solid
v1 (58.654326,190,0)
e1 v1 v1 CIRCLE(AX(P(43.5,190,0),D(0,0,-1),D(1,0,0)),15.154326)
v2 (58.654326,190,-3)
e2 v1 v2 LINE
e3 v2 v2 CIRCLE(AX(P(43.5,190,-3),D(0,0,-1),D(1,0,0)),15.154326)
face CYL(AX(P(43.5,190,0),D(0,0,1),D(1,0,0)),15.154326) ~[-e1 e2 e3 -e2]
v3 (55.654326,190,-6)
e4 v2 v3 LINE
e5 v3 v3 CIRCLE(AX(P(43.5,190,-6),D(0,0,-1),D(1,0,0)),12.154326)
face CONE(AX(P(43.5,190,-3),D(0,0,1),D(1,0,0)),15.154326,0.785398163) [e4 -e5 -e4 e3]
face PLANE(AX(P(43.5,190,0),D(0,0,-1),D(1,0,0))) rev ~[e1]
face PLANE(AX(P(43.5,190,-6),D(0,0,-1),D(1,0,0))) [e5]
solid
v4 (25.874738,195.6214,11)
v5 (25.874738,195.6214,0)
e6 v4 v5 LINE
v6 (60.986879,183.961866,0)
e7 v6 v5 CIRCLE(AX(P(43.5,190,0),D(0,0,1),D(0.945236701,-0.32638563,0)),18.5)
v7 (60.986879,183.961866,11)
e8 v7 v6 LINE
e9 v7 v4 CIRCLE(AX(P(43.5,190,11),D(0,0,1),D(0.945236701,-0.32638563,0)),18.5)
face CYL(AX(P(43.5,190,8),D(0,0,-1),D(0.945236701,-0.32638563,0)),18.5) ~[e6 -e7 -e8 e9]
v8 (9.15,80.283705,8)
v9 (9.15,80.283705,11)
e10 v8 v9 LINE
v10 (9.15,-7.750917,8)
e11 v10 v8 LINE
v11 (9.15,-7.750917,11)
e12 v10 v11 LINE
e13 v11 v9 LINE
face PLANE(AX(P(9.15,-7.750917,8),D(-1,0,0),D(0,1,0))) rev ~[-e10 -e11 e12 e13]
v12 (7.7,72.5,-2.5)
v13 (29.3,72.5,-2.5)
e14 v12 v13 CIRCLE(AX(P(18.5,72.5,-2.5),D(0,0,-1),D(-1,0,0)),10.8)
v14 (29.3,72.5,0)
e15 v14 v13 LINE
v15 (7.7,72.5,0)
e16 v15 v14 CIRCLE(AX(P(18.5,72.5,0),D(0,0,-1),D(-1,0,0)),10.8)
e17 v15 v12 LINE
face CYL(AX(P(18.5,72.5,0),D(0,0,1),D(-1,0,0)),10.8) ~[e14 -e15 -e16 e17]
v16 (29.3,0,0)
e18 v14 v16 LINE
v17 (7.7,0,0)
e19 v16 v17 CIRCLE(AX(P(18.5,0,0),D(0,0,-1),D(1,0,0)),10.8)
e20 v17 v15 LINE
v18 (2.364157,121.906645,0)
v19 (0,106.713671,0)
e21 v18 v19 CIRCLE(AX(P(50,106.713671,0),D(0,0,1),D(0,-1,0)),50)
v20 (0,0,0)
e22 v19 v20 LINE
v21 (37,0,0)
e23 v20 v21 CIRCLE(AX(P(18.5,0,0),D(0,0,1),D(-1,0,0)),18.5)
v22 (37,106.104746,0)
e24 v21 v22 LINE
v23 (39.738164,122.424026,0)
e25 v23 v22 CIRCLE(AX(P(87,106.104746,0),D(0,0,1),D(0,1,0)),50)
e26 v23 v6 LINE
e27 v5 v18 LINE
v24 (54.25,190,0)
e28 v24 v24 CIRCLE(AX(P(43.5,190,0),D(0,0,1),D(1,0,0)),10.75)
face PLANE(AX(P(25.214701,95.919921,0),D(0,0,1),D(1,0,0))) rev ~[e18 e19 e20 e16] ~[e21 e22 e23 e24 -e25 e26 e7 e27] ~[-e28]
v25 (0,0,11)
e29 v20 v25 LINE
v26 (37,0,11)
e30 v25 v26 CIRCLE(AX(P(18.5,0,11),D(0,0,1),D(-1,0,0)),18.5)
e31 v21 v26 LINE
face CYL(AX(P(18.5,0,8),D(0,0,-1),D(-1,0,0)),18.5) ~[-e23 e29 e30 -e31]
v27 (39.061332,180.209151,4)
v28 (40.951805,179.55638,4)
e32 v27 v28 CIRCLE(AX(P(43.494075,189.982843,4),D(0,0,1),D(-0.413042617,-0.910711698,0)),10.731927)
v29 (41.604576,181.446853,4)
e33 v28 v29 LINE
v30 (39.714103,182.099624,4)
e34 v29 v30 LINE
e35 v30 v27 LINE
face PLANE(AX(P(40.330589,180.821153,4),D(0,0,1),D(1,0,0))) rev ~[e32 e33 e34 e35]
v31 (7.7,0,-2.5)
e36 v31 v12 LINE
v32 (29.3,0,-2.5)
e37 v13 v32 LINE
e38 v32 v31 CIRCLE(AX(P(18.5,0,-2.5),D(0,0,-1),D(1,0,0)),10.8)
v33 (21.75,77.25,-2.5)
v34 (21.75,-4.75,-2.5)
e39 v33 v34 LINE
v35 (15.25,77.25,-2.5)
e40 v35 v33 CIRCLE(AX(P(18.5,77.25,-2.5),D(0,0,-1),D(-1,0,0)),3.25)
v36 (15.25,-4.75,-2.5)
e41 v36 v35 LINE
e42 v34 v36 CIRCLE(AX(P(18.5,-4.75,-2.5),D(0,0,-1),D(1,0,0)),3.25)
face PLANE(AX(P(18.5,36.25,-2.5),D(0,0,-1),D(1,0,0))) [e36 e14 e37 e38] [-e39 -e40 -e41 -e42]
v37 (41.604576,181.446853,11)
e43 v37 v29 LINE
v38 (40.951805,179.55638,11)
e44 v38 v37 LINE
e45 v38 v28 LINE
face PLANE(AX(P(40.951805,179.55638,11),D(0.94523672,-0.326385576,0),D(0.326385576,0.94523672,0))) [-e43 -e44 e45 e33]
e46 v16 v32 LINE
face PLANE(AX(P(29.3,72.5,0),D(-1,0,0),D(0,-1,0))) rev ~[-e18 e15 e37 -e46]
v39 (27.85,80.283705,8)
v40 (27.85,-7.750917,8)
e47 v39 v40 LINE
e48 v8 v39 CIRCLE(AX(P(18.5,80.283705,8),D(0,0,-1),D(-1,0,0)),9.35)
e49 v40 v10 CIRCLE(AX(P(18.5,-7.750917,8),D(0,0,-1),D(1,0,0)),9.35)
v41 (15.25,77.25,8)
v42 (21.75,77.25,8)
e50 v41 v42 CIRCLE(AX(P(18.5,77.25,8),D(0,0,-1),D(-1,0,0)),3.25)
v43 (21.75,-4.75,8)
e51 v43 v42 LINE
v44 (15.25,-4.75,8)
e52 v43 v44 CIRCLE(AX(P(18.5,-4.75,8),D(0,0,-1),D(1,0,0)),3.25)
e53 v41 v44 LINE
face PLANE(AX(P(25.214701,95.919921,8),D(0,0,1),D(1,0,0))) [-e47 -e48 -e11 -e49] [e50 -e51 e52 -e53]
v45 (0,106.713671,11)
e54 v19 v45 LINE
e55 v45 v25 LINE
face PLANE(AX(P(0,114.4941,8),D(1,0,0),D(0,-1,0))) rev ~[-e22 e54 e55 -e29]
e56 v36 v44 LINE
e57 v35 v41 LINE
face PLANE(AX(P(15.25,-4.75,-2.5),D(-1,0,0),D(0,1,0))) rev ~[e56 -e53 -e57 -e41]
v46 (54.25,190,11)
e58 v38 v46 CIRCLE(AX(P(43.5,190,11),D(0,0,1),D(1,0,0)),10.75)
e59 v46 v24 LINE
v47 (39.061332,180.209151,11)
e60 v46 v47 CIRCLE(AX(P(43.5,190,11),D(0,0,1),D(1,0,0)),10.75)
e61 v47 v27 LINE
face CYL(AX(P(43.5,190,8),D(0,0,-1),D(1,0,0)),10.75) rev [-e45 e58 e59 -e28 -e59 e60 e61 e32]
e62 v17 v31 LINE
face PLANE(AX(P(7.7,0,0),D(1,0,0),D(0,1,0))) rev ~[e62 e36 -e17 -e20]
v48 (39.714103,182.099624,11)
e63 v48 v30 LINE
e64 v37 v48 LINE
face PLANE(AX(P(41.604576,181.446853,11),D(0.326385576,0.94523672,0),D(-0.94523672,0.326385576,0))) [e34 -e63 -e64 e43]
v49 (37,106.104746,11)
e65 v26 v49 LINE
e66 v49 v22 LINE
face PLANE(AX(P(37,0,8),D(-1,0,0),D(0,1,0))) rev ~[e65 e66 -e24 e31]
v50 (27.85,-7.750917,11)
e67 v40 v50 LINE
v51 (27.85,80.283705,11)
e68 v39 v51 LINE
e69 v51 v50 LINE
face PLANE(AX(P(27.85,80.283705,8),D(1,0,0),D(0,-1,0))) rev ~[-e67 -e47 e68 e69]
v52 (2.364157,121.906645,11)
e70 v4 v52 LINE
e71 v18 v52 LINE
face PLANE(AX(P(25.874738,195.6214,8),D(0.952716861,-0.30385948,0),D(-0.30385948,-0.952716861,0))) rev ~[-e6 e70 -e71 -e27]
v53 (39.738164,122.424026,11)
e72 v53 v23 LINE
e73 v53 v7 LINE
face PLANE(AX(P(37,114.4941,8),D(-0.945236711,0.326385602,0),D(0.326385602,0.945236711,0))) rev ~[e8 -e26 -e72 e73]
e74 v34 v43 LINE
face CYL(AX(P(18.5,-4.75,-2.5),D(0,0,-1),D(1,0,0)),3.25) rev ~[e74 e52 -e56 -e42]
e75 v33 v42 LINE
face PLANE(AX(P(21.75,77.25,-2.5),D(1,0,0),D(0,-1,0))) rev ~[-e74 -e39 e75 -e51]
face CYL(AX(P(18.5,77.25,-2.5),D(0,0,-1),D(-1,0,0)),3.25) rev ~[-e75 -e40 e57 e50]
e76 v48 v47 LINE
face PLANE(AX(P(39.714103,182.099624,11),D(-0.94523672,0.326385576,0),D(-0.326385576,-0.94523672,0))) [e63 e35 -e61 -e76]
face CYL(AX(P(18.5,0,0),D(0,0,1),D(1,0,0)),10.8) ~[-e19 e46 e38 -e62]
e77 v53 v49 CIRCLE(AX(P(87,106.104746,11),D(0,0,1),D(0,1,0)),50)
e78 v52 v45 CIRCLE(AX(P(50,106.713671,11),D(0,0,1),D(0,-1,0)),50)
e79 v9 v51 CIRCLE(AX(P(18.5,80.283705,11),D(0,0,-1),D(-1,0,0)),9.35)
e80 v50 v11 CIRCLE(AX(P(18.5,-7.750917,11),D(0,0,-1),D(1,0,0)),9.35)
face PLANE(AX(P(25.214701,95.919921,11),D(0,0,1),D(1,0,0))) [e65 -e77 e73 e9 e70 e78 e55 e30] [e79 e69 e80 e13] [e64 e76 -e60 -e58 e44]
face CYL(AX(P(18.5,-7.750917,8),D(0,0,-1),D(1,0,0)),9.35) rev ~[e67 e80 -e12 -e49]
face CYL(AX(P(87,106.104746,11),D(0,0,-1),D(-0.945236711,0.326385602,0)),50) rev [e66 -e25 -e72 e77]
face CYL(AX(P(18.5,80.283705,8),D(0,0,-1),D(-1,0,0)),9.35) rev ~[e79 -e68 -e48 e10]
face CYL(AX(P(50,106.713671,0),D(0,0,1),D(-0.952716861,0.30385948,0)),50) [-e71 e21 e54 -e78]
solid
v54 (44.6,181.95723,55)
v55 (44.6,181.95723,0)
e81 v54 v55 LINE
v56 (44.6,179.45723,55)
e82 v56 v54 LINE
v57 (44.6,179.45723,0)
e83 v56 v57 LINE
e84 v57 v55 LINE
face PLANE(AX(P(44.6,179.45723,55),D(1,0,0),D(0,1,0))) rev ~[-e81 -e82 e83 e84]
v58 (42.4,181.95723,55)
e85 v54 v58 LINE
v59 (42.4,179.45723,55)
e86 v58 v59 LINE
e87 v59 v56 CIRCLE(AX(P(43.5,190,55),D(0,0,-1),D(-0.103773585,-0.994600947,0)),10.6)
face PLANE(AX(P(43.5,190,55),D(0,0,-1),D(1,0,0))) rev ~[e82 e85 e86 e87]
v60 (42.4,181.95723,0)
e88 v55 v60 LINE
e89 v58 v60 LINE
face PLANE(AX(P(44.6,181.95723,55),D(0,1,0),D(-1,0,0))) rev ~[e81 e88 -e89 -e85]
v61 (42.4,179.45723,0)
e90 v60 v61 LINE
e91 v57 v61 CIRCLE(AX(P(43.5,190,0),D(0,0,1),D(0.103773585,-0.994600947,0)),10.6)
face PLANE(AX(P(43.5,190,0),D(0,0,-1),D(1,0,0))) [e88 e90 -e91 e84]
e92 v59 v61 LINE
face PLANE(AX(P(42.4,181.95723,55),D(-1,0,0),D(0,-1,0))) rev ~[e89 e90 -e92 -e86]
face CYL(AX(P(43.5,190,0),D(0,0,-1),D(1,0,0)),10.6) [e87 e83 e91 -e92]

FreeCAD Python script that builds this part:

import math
import FreeCAD as App
import Part
import Sketcher
from FreeCAD import Vector


def edges_at(feature, points):
    """Names of the edges that pass closest to the given points."""
    edges = feature.Shape.Edges
    near = lambda p: min(range(len(edges)), key=lambda i: edges[i].distToShape(Part.Vertex(*p))[0])
    return sorted({f"Edge{near(p) + 1}" for p in points})

doc = App.newDocument("Part")
body = doc.addObject("PartDesign::Body", "Body")

# Sketch on XY plane
sketch1 = body.newObject("Sketcher::SketchObject", "Sketch")
sketch1.AttachmentSupport = (doc.getObject("XY_Plane"), [""])
sketch1.MapMode = "FlatFace"
sketch1.addGeometry([
    Part.LineSegment(Vector(0, 114, 0), Vector(0, 0, 0)),  # 0
    Part.ArcOfCircle(Part.Circle(Vector(18, 0, 0), Vector(0, 0, 1), 18), math.radians(180), math.radians(360)),  # 1
    Part.LineSegment(Vector(37, 0, 0), Vector(37, 114, 0)),  # 2
    Part.LineSegment(Vector(37, 114, 0), Vector(61, 184, 0)),  # 3
    Part.ArcOfCircle(Part.Circle(Vector(44, 190, 0), Vector(0, 0, 1), 18), math.radians(-19), math.radians(162)),  # 4
    Part.LineSegment(Vector(26, 196, 0), Vector(0, 114, 0)),  # 5
    Part.Circle(Vector(44, 190, 0), Vector(0, 0, 1), 11),  # 6
], False)
sketch1.addConstraint([
    Sketcher.Constraint("Tangent", 0, 2, 1, 1),
    Sketcher.Constraint("Tangent", 1, 2, 2, 1),
    Sketcher.Constraint("Coincident", 2, 2, 3, 1),
    Sketcher.Constraint("Tangent", 3, 2, 4, 1),
    Sketcher.Constraint("Tangent", 4, 2, 5, 1),
    Sketcher.Constraint("Coincident", 5, 2, 0, 1),
    Sketcher.Constraint("Vertical", 0),
    Sketcher.Constraint("Vertical", 2),
    Sketcher.Constraint("Coincident", 0, 2, -1, 1),
    Sketcher.Constraint("Coincident", 6, 3, 4, 3),
    Sketcher.Constraint("Equal", 1, 4),
    Sketcher.Constraint("Horizontal", 2, 2, 5, 2),
    Sketcher.Constraint("Diameter", 6, 21.5),
    Sketcher.Constraint("Radius", 1, 18.5),
    Sketcher.Constraint("DistanceY", -1, 1, 4, 3, 190.0),
    Sketcher.Constraint("DistanceX", 1, 3, 4, 3, 25.0),
    Sketcher.Constraint("DistanceY", 0, 2, 0, 1, 114.4941),
])
pad1 = body.newObject("PartDesign::Pad", "Pad")
pad1.Profile = sketch1
pad1.Length = 8

# Sketch on XY plane
sketch2 = body.newObject("Sketcher::SketchObject", "Sketch001")
sketch2.AttachmentSupport = (doc.getObject("XY_Plane"), [""])
sketch2.MapMode = "FlatFace"
sketch2.addGeometry([
    Part.ArcOfCircle(Part.Circle(Vector(18, 0, 0), Vector(0, 0, 1), 11), math.radians(180), math.radians(360)),
    Part.LineSegment(Vector(8, 0, 0), Vector(8, 72, 0)),
    Part.ArcOfCircle(Part.Circle(Vector(18, 72, 0), Vector(0, 0, 1), 11), math.radians(0), math.radians(180)),
    Part.LineSegment(Vector(29, 72, 0), Vector(29, 0, 0)),
], False)
sketch2.addConstraint([
    Sketcher.Constraint("Tangent", 0, 1, 1, 1),
    Sketcher.Constraint("Tangent", 1, 2, 2, 2),
    Sketcher.Constraint("Tangent", 2, 1, 3, 1),
    Sketcher.Constraint("Tangent", 3, 2, 0, 2),
    Sketcher.Constraint("Vertical", 1),
    Sketcher.Constraint("Vertical", 3),
    Sketcher.Constraint("PointOnObject", 0, 3, -1),
    Sketcher.Constraint("Radius", 0, 10.8),
    Sketcher.Constraint("DistanceY", 1, 1, 1, 2, 72.5),
    Sketcher.Constraint("DistanceX", -1, 1, 0, 3, 18.5),
])
pad2 = body.newObject("PartDesign::Pad", "Pad001")
pad2.Profile = sketch2
pad2.Length = 2.5
pad2.Reversed = True

# Sketch on XY plane
sketch3 = body.newObject("Sketcher::SketchObject", "Sketch002")
sketch3.AttachmentSupport = (doc.getObject("XY_Plane"), [""])
sketch3.MapMode = "FlatFace"
sketch3.AttachmentOffset = App.Placement(Vector(0, 0, -2.5), App.Rotation())
sketch3.addGeometry([
    Part.ArcOfCircle(Part.Circle(Vector(18.5, -4.8, 0), Vector(0, 0, 1), 3.2), math.radians(180), math.radians(360)),
    Part.LineSegment(Vector(15.2, -4.8, 0), Vector(15.2, 77.2, 0)),
    Part.ArcOfCircle(Part.Circle(Vector(18.5, 77.2, 0), Vector(0, 0, 1), 3.2), math.radians(0), math.radians(180)),
    Part.LineSegment(Vector(21.8, 77.2, 0), Vector(21.8, -4.8, 0)),
], False)
sketch3.addConstraint([
    Sketcher.Constraint("Tangent", 0, 1, 1, 1),
    Sketcher.Constraint("Tangent", 1, 2, 2, 2),
    Sketcher.Constraint("Tangent", 2, 1, 3, 1),
    Sketcher.Constraint("Tangent", 3, 2, 0, 2),
    Sketcher.Constraint("Vertical", 1),
    Sketcher.Constraint("Vertical", 3),
    Sketcher.Constraint("DistanceY", 1, 1, 1, 2, 82.0),
    Sketcher.Constraint("Radius", 0, 3.25),
    Sketcher.Constraint("DistanceX", -1, 1, 0, 3, 18.5),
    Sketcher.Constraint("DistanceY", 0, 3, -1, 1, 4.75),
])
pocket1 = body.newObject("PartDesign::Pocket", "Pocket")
pocket1.Profile = sketch3
pocket1.Length = 25
pocket1.Reversed = True

# Sketch on XY plane
sketch4 = body.newObject("Sketcher::SketchObject", "Sketch003")
sketch4.AttachmentSupport = (doc.getObject("XY_Plane"), [""])
sketch4.MapMode = "FlatFace"
sketch4.AttachmentOffset = App.Placement(Vector(0, 0, 8), App.Rotation())
sketch4.addGeometry([
    Part.LineSegment(Vector(26, 196, 0), Vector(0, 114, 0)),  # 0
    Part.LineSegment(Vector(0, 114, 0), Vector(0, 0, 0)),  # 1
    Part.ArcOfCircle(Part.Circle(Vector(18, 0, 0), Vector(0, 0, 1), 18), math.radians(180), math.radians(360)),  # 2
    Part.LineSegment(Vector(37, 0, 0), Vector(37, 114, 0)),  # 3
    Part.LineSegment(Vector(37, 114, 0), Vector(61, 184, 0)),  # 4
    Part.ArcOfCircle(Part.Circle(Vector(44, 190, 0), Vector(0, 0, 1), 18), math.radians(-19), math.radians(162)),  # 5
    Part.ArcOfCircle(Part.Circle(Vector(18, -8, 0), Vector(0, 0, 1), 9), math.radians(180), math.radians(360)),  # 6
    Part.LineSegment(Vector(9, -8, 0), Vector(9, 80, 0)),  # 7
    Part.ArcOfCircle(Part.Circle(Vector(18, 80, 0), Vector(0, 0, 1), 9), math.radians(0), math.radians(180)),  # 8
    Part.LineSegment(Vector(28, 80, 0), Vector(28, -8, 0)),  # 9
    Part.Circle(Vector(44, 190, 0), Vector(0, 0, 1), 11),  # 10
], False)
sketch4.addConstraint([
    Sketcher.Constraint("Coincident", 0, 2, 1, 1),
    Sketcher.Constraint("Tangent", 1, 2, 2, 1),
    Sketcher.Constraint("Tangent", 2, 2, 3, 1),
    Sketcher.Constraint("Coincident", 3, 2, 4, 1),
    Sketcher.Constraint("Tangent", 4, 2, 5, 1),
    Sketcher.Constraint("Tangent", 5, 2, 0, 1),
    Sketcher.Constraint("Tangent", 6, 1, 7, 1),
    Sketcher.Constraint("Tangent", 7, 2, 8, 2),
    Sketcher.Constraint("Tangent", 8, 1, 9, 1),
    Sketcher.Constraint("Tangent", 9, 2, 6, 2),
    Sketcher.Constraint("Vertical", 1),
    Sketcher.Constraint("Vertical", 3),
    Sketcher.Constraint("Vertical", 7),
    Sketcher.Constraint("Vertical", 9),
    Sketcher.Constraint("Coincident", 1, 2, -1, 1),
    Sketcher.Constraint("Coincident", 10, 3, 5, 3),
    Sketcher.Constraint("Equal", 2, 5),
    Sketcher.Constraint("Horizontal", 0, 2, 3, 2),
    Sketcher.Constraint("Vertical", 2, 3, 6, 3),
    Sketcher.Constraint("Diameter", 10, 21.5),
    Sketcher.Constraint("Radius", 2, 18.5),
    Sketcher.Constraint("Radius", 6, 9.35),
    Sketcher.Constraint("DistanceY", -1, 1, 5, 3, 190.0),
    Sketcher.Constraint("DistanceX", 2, 3, 5, 3, 25.0),
    Sketcher.Constraint("DistanceY", 1, 2, 1, 1, 114.4941),
    Sketcher.Constraint("DistanceY", 7, 1, 7, 2, 88.034622),
    Sketcher.Constraint("DistanceY", 8, 3, 4, 2, 103.678161),
])
pad3 = body.newObject("PartDesign::Pad", "Pad002")
pad3.Profile = sketch4
pad3.Length = 3

# Sketch on XY plane
sketch5 = body.newObject("Sketcher::SketchObject", "Sketch004")
sketch5.AttachmentSupport = (doc.getObject("XY_Plane"), [""])
sketch5.MapMode = "FlatFace"
sketch5.AttachmentOffset = App.Placement(Vector(0, 0, 11), App.Rotation())
sketch5.addGeometry([
    Part.LineSegment(Vector(39.7, 182.1, 0), Vector(39.1, 180.2, 0)),
    Part.ArcOfCircle(Part.Circle(Vector(43.5, 190, 0), Vector(0, 0, 1), 10.7), math.radians(-114.4), math.radians(-103.7)),
    Part.LineSegment(Vector(41, 179.6, 0), Vector(41.6, 181.4, 0)),
    Part.LineSegment(Vector(41.6, 181.4, 0), Vector(39.7, 182.1, 0)),
], False)
sketch5.addConstraint([
    Sketcher.Constraint("Coincident", 0, 2, 1, 1),
    Sketcher.Constraint("Coincident", 1, 2, 2, 1),
    Sketcher.Constraint("Coincident", 2, 2, 3, 1),
    Sketcher.Constraint("Coincident", 3, 2, 0, 1),
    Sketcher.Constraint("Parallel", 0, 2),
    Sketcher.Constraint("Perpendicular", 2, 3),
    Sketcher.Constraint("Equal", 0, 2),
    Sketcher.Constraint("Equal", 2, 3),
    Sketcher.Constraint("Distance", 0, 2.0),
    Sketcher.Constraint("Radius", 1, 10.731927),
    Sketcher.Constraint("DistanceX", 2, 2, 1, 3, 1.889499),
    Sketcher.Constraint("DistanceY", -1, 1, 0, 2, 180.209151),
    Sketcher.Constraint("DistanceX", -1, 1, 1, 3, 43.494075),
])
pad4 = body.newObject("PartDesign::Pad", "Pad003")
pad4.Profile = sketch5
pad4.Length = 7
pad4.Reversed = True
doc.recompute()

fillet = body.newObject("PartDesign::Fillet", "Fillet")
fillet.Base = (pad4, edges_at(pad4, [(0, 114.494, 5.5), (37, 114.494, 5.5)]))
fillet.Radius = 50
body2 = doc.addObject("PartDesign::Body", "Body001")

# Sketch on XY plane
sketch6 = body2.newObject("Sketcher::SketchObject", "Sketch005")
sketch6.AttachmentSupport = (doc.getObject("XY_Plane001"), [""])
sketch6.MapMode = "FlatFace"
sketch6.addGeometry(Part.Circle(Vector(44, 190, 0), Vector(0, 0, 1), 11), False)
sketch6.addConstraint([
    Sketcher.Constraint("Diameter", 0, 21.2),
    Sketcher.Constraint("DistanceY", -1, 1, 0, 3, 190.0),
    Sketcher.Constraint("DistanceX", -1, 1, 0, 3, 43.5),
])
pad5 = body2.newObject("PartDesign::Pad", "Pad004")
pad5.Profile = sketch6
pad5.Length = 55

# Sketch on XY plane
sketch7 = body2.newObject("Sketcher::SketchObject", "Sketch006")
sketch7.AttachmentSupport = (doc.getObject("XY_Plane001"), [""])
sketch7.MapMode = "FlatFace"
sketch7.AttachmentOffset = App.Placement(Vector(0, 0, 55), App.Rotation())
sketch7.addGeometry([
    Part.LineSegment(Vector(44.6, 182, 0), Vector(42.4, 182, 0)),
    Part.LineSegment(Vector(42.4, 182, 0), Vector(42.4, 179.5, 0)),
    Part.ArcOfCircle(Part.Circle(Vector(43.5, 190, 0), Vector(0, 0, 1), 10.6), math.radians(-95.96), math.radians(-84.04)),
    Part.LineSegment(Vector(44.6, 179.5, 0), Vector(44.6, 182, 0)),
], False)
sketch7.addConstraint([
    Sketcher.Constraint("Coincident", 0, 2, 1, 1),
    Sketcher.Constraint("Coincident", 1, 2, 2, 1),
    Sketcher.Constraint("Coincident", 2, 2, 3, 1),
    Sketcher.Constraint("Coincident", 3, 2, 0, 1),
    Sketcher.Constraint("Horizontal", 0),
    Sketcher.Constraint("Vertical", 1),
    Sketcher.Constraint("Vertical", 3),
    Sketcher.Constraint("Horizontal", 1, 2, 2, 2),
    Sketcher.Constraint("DistanceX", 0, 2, 0, 1, 2.2),
    Sketcher.Constraint("DistanceY", 1, 2, 1, 1, 2.5),
    Sketcher.Constraint("DistanceX", -1, 1, 2, 3, 43.5),
    Sketcher.Constraint("Radius", 2, 10.599994),
    Sketcher.Constraint("DistanceY", -1, 1, 0, 2, 181.95723),
])
pocket2 = body2.newObject("PartDesign::Pocket", "Pocket001")
pocket2.Profile = sketch7
pocket2.Length = 55
body3 = doc.addObject("PartDesign::Body", "Body002")

# Sketch on XY plane
sketch8 = body3.newObject("Sketcher::SketchObject", "Sketch007")
sketch8.AttachmentSupport = (doc.getObject("XY_Plane002"), [""])
sketch8.MapMode = "FlatFace"
sketch8.addGeometry(Part.Circle(Vector(44, 190, 0), Vector(0, 0, 1), 15), False)
sketch8.addConstraint([
    Sketcher.Constraint("DistanceY", -1, 1, 0, 3, 190.0),
    Sketcher.Constraint("DistanceX", -1, 1, 0, 3, 43.5),
    Sketcher.Constraint("Diameter", 0, 30.308652),
])
pad6 = body3.newObject("PartDesign::Pad", "Pad005")
pad6.Profile = sketch8
pad6.Length = 6
pad6.Reversed = True
doc.recompute()

chamfer = body3.newObject("PartDesign::Chamfer", "Chamfer")
chamfer.Base = (pad6, edges_at(pad6, [(28.346, 190, -6)]))
chamfer.Size = 3

doc.recompute()
